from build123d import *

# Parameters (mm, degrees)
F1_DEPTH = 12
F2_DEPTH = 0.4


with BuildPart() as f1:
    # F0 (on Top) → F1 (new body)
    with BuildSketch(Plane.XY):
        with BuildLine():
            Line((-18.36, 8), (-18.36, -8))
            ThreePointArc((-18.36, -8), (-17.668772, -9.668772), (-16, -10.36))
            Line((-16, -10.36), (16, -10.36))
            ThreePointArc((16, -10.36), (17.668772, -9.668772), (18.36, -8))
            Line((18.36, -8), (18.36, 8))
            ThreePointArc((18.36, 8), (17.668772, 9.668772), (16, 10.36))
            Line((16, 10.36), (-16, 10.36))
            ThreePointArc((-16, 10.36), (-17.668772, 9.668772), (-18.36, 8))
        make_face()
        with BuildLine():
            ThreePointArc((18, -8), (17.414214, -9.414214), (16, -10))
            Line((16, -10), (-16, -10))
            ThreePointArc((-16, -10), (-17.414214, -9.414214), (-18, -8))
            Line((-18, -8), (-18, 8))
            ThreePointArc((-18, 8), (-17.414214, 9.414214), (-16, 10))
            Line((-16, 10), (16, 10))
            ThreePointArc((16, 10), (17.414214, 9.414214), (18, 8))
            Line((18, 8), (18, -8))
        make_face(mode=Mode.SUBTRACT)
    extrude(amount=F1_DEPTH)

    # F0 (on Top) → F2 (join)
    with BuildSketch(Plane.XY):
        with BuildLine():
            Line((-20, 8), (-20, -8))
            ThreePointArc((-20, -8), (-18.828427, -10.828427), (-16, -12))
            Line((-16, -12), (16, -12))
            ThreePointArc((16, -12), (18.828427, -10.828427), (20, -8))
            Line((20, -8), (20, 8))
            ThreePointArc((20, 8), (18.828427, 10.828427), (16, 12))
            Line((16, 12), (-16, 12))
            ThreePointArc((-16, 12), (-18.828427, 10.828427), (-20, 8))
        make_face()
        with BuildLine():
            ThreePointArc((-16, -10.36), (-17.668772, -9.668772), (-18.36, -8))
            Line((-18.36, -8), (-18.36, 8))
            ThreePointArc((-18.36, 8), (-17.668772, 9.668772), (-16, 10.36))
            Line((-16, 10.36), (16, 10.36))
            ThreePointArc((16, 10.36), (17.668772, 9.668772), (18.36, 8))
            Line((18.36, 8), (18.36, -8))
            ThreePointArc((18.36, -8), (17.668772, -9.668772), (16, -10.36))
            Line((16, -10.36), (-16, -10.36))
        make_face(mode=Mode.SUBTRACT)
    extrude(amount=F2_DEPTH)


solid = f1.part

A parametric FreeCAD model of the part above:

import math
import FreeCAD as App
import Part
import Sketcher

V = App.Vector
Q = App.Units.Quantity

doc = App.newDocument("Part")
body = doc.addObject("PartDesign::Body", "Body")

sketch1 = body.newObject("Sketcher::SketchObject", "Sketch")
sketch1.AttachmentSupport = (doc.getObject("XY_Plane"), [""])
sketch1.MapMode = "FlatFace"
sketch1.addGeometry(Part.LineSegment(V(-18.4, 8, 0), V(-18.4, -8, 0)), False)
sketch1.addGeometry(Part.ArcOfCircle(Part.Circle(V(-16, -8, 0), V(0, 0, 1), 2.4), math.radians(-180), math.radians(-90)), False)
sketch1.addGeometry(Part.LineSegment(V(-16, -10.4, 0), V(16, -10.4, 0)), False)
sketch1.addGeometry(Part.ArcOfCircle(Part.Circle(V(16, -8, 0), V(0, 0, 1), 2.4), math.radians(-90), math.radians(0)), False)
sketch1.addGeometry(Part.LineSegment(V(18.4, -8, 0), V(18.4, 8, 0)), False)
sketch1.addGeometry(Part.ArcOfCircle(Part.Circle(V(16, 8, 0), V(0, 0, 1), 2.4), math.radians(0), math.radians(90)), False)
sketch1.addGeometry(Part.LineSegment(V(16, 10.4, 0), V(-16, 10.4, 0)), False)
sketch1.addGeometry(Part.ArcOfCircle(Part.Circle(V(-16, 8, 0), V(0, 0, 1), 2.4), math.radians(90), math.radians(180)), False)
sketch1.addGeometry(Part.LineSegment(V(18, 8, 0), V(18, -8, 0)), False)
sketch1.addGeometry(Part.ArcOfCircle(Part.Circle(V(16, -8, 0), V(0, 0, 1), 2), math.radians(-90), math.radians(0)), False)
sketch1.addGeometry(Part.LineSegment(V(16, -10, 0), V(-16, -10, 0)), False)
sketch1.addGeometry(Part.ArcOfCircle(Part.Circle(V(-16, -8, 0), V(0, 0, 1), 2), math.radians(180), math.radians(270)), False)
sketch1.addGeometry(Part.LineSegment(V(-18, -8, 0), V(-18, 8, 0)), False)
sketch1.addGeometry(Part.ArcOfCircle(Part.Circle(V(-16, 8, 0), V(0, 0, 1), 2), math.radians(90), math.radians(180)), False)
sketch1.addGeometry(Part.LineSegment(V(-16, 10, 0), V(16, 10, 0)), False)
sketch1.addGeometry(Part.ArcOfCircle(Part.Circle(V(16, 8, 0), V(0, 0, 1), 2), math.radians(0), math.radians(90)), False)
sketch1.addConstraint(Sketcher.Constraint("Tangent", 0, 2, 1, 1))
sketch1.addConstraint(Sketcher.Constraint("Tangent", 1, 2, 2, 1))
sketch1.addConstraint(Sketcher.Constraint("Tangent", 2, 2, 3, 1))
sketch1.addConstraint(Sketcher.Constraint("Tangent", 3, 2, 4, 1))
sketch1.addConstraint(Sketcher.Constraint("Tangent", 4, 2, 5, 1))
sketch1.addConstraint(Sketcher.Constraint("Tangent", 5, 2, 6, 1))
sketch1.addConstraint(Sketcher.Constraint("Tangent", 6, 2, 7, 1))
sketch1.addConstraint(Sketcher.Constraint("Tangent", 7, 2, 0, 1))
sketch1.addConstraint(Sketcher.Constraint("Tangent", 8, 2, 9, 2))
sketch1.addConstraint(Sketcher.Constraint("Tangent", 9, 1, 10, 1))
sketch1.addConstraint(Sketcher.Constraint("Tangent", 10, 2, 11, 2))
sketch1.addConstraint(Sketcher.Constraint("Tangent", 11, 1, 12, 1))
sketch1.addConstraint(Sketcher.Constraint("Tangent", 12, 2, 13, 2))
sketch1.addConstraint(Sketcher.Constraint("Tangent", 13, 1, 14, 1))
sketch1.addConstraint(Sketcher.Constraint("Tangent", 14, 2, 15, 2))
sketch1.addConstraint(Sketcher.Constraint("Tangent", 15, 1, 8, 1))
sketch1.addConstraint(Sketcher.Constraint("Vertical", 0))
sketch1.addConstraint(Sketcher.Constraint("Horizontal", 2))
sketch1.addConstraint(Sketcher.Constraint("Vertical", 4))
sketch1.addConstraint(Sketcher.Constraint("Horizontal", 6))
sketch1.addConstraint(Sketcher.Constraint("Vertical", 8))
sketch1.addConstraint(Sketcher.Constraint("Horizontal", 10))
sketch1.addConstraint(Sketcher.Constraint("Vertical", 12))
sketch1.addConstraint(Sketcher.Constraint("Horizontal", 14))
sketch1.addConstraint(Sketcher.Constraint("Coincident", 9, 3, 3, 3))
sketch1.addConstraint(Sketcher.Constraint("Coincident", 11, 3, 1, 3))
sketch1.addConstraint(Sketcher.Constraint("Coincident", 13, 3, 7, 3))
sketch1.addConstraint(Sketcher.Constraint("Equal", 1, 3))
sketch1.addConstraint(Sketcher.Constraint("Equal", 3, 5))
sketch1.addConstraint(Sketcher.Constraint("Equal", 5, 7))
sketch1.addConstraint(Sketcher.Constraint("Equal", 13, 15))
sketch1.addConstraint(Sketcher.Constraint("Symmetric", 1, 3, 5, 3, -1, 1))
sketch1.addConstraint(Sketcher.Constraint("Radius", 9, Q("1.999999 mm")))
sketch1.addConstraint(Sketcher.Constraint("DistanceX", 2, 1, 2, 2, Q("32 mm")))
sketch1.addConstraint(Sketcher.Constraint("DistanceY", 0, 2, 0, 1, Q("16 mm")))
sketch1.addConstraint(Sketcher.Constraint("Radius", 1, Q("2.36 mm")))
pad1 = body.newObject("PartDesign::Pad", "Pad")
pad1.Profile = sketch1
pad1.Length = 12

sketch2 = body.newObject("Sketcher::SketchObject", "Sketch001")
sketch2.AttachmentSupport = (doc.getObject("XY_Plane"), [""])
sketch2.MapMode = "FlatFace"
sketch2.addGeometry(Part.LineSegment(V(-20, 8, 0), V(-20, -8, 0)), False)
sketch2.addGeometry(Part.ArcOfCircle(Part.Circle(V(-16, -8, 0), V(0, 0, 1), 4), math.radians(-180), math.radians(-90)), False)
sketch2.addGeometry(Part.LineSegment(V(-16, -12, 0), V(16, -12, 0)), False)
sketch2.addGeometry(Part.ArcOfCircle(Part.Circle(V(16, -8, 0), V(0, 0, 1), 4), math.radians(-90), math.radians(0)), False)
sketch2.addGeometry(Part.LineSegment(V(20, -8, 0), V(20, 8, 0)), False)
sketch2.addGeometry(Part.ArcOfCircle(Part.Circle(V(16, 8, 0), V(0, 0, 1), 4), math.radians(0), math.radians(90)), False)
sketch2.addGeometry(Part.LineSegment(V(16, 12, 0), V(-16, 12, 0)), False)
sketch2.addGeometry(Part.ArcOfCircle(Part.Circle(V(-16, 8, 0), V(0, 0, 1), 4), math.radians(90), math.radians(180)), False)
sketch2.addGeometry(Part.LineSegment(V(16, -10.4, 0), V(-16, -10.4, 0)), False)
sketch2.addGeometry(Part.ArcOfCircle(Part.Circle(V(-16, -8, 0), V(0, 0, 1), 2.4), math.radians(-180), math.radians(-90)), False)
sketch2.addGeometry(Part.LineSegment(V(-18.4, -8, 0), V(-18.4, 8, 0)), False)
sketch2.addGeometry(Part.ArcOfCircle(Part.Circle(V(-16, 8, 0), V(0, 0, 1), 2.4), math.radians(90), math.radians(180)), False)
sketch2.addGeometry(Part.LineSegment(V(-16, 10.4, 0), V(16, 10.4, 0)), False)
sketch2.addGeometry(Part.ArcOfCircle(Part.Circle(V(16, 8, 0), V(0, 0, 1), 2.4), math.radians(0), math.radians(90)), False)
sketch2.addGeometry(Part.LineSegment(V(18.4, 8, 0), V(18.4, -8, 0)), False)
sketch2.addGeometry(Part.ArcOfCircle(Part.Circle(V(16, -8, 0), V(0, 0, 1), 2.4), math.radians(-90), math.radians(0)), False)
sketch2.addConstraint(Sketcher.Constraint("Tangent", 0, 2, 1, 1))
sketch2.addConstraint(Sketcher.Constraint("Tangent", 1, 2, 2, 1))
sketch2.addConstraint(Sketcher.Constraint("Tangent", 2, 2, 3, 1))
sketch2.addConstraint(Sketcher.Constraint("Tangent", 3, 2, 4, 1))
sketch2.addConstraint(Sketcher.Constraint("Tangent", 4, 2, 5, 1))
sketch2.addConstraint(Sketcher.Constraint("Tangent", 5, 2, 6, 1))
sketch2.addConstraint(Sketcher.Constraint("Tangent", 6, 2, 7, 1))
sketch2.addConstraint(Sketcher.Constraint("Tangent", 7, 2, 0, 1))
sketch2.addConstraint(Sketcher.Constraint("Tangent", 8, 2, 9, 2))
sketch2.addConstraint(Sketcher.Constraint("Tangent", 9, 1, 10, 1))
sketch2.addConstraint(Sketcher.Constraint("Tangent", 10, 2, 11, 2))
sketch2.addConstraint(Sketcher.Constraint("Tangent", 11, 1, 12, 1))
sketch2.addConstraint(Sketcher.Constraint("Tangent", 12, 2, 13, 2))
sketch2.addConstraint(Sketcher.Constraint("Tangent", 13, 1, 14, 1))
sketch2.addConstraint(Sketcher.Constraint("Tangent", 14, 2, 15, 2))
sketch2.addConstraint(Sketcher.Constraint("Tangent", 15, 1, 8, 1))
sketch2.addConstraint(Sketcher.Constraint("Vertical", 0))
sketch2.addConstraint(Sketcher.Constraint("Horizontal", 2))
sketch2.addConstraint(Sketcher.Constraint("Vertical", 4))
sketch2.addConstraint(Sketcher.Constraint("Horizontal", 6))
sketch2.addConstraint(Sketcher.Constraint("Horizontal", 8))
sketch2.addConstraint(Sketcher.Constraint("Vertical", 10))
sketch2.addConstraint(Sketcher.Constraint("Horizontal", 12))
sketch2.addConstraint(Sketcher.Constraint("Vertical", 14))
sketch2.addConstraint(Sketcher.Constraint("Coincident", 9, 3, 1, 3))
sketch2.addConstraint(Sketcher.Constraint("Coincident", 11, 3, 7, 3))
sketch2.addConstraint(Sketcher.Constraint("Coincident", 13, 3, 5, 3))
sketch2.addConstraint(Sketcher.Constraint("Equal", 1, 3))
sketch2.addConstraint(Sketcher.Constraint("Equal", 3, 5))
sketch2.addConstraint(Sketcher.Constraint("Equal", 5, 7))
sketch2.addConstraint(Sketcher.Constraint("Equal", 13, 15))
sketch2.addConstraint(Sketcher.Constraint("Symmetric", 1, 3, 5, 3, -1, 1))
sketch2.addConstraint(Sketcher.Constraint("Radius", 1, Q("4 mm")))
sketch2.addConstraint(Sketcher.Constraint("DistanceX", 2, 1, 2, 2, Q("32 mm")))
sketch2.addConstraint(Sketcher.Constraint("DistanceY", 0, 2, 0, 1, Q("16 mm")))
sketch2.addConstraint(Sketcher.Constraint("Radius", 9, Q("2.36 mm")))
pad2 = body.newObject("PartDesign::Pad", "Pad001")
pad2.Profile = sketch2
pad2.Length = 0.4

doc.recompute()
